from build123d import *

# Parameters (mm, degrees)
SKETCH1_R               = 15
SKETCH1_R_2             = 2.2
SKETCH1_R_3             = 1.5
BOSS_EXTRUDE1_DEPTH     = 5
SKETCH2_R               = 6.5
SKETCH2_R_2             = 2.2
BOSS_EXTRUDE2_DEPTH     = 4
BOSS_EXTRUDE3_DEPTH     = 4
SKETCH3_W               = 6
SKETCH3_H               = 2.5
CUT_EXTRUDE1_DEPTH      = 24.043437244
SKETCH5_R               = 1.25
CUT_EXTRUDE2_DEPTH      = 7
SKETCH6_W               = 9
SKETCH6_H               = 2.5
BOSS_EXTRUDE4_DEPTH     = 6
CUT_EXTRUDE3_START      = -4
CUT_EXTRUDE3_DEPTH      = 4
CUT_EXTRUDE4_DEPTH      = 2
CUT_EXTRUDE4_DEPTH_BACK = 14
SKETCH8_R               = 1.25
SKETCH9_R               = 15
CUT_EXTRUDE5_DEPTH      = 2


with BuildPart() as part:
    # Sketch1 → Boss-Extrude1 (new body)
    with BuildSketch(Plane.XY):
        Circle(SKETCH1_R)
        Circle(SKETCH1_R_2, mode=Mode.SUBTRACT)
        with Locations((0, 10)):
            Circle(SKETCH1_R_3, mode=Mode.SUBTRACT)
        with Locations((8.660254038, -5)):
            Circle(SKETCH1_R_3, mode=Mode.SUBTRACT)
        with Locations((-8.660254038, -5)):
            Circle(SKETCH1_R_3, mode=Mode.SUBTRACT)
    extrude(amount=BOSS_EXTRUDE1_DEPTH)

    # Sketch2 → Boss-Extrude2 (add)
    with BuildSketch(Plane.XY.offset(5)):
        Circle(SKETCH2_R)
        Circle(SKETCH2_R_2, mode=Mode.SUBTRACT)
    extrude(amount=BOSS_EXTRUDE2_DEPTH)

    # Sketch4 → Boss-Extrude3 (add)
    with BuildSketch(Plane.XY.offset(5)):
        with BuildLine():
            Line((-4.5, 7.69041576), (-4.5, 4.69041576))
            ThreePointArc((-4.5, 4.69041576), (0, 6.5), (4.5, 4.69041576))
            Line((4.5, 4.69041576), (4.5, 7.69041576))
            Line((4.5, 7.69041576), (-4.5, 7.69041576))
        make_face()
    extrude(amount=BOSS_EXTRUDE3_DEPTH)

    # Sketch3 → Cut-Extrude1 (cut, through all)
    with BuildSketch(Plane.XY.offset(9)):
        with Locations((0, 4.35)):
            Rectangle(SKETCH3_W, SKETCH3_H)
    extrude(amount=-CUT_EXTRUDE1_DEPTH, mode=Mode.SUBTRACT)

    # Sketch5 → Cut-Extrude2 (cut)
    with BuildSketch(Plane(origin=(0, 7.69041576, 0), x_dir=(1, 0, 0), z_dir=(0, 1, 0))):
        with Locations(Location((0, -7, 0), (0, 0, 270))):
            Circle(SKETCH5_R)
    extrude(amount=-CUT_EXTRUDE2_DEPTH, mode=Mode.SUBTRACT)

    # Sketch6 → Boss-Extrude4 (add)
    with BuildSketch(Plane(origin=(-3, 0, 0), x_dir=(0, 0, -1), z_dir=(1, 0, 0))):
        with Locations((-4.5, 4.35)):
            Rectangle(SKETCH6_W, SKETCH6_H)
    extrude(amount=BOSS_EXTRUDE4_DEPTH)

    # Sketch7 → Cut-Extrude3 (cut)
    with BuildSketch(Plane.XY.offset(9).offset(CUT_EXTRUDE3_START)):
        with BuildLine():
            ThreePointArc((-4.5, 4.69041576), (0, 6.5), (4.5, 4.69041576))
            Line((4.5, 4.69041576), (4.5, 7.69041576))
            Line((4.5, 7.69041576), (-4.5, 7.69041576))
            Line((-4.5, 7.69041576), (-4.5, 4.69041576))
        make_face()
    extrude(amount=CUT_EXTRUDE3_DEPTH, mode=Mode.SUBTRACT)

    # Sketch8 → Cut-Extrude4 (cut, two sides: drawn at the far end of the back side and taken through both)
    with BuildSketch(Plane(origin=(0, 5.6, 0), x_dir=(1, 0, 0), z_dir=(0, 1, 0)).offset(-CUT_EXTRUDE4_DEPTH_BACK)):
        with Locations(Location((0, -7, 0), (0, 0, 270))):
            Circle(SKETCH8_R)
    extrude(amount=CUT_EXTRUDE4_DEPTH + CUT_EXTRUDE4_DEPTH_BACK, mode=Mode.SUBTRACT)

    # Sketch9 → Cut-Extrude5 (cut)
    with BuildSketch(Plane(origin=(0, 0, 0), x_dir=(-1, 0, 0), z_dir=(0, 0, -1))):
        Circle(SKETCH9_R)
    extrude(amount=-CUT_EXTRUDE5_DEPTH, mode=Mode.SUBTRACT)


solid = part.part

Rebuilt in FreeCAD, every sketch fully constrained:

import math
import FreeCAD as App
import Part
import Sketcher
from FreeCAD import Vector


def add_polygon(sketch, points):
    """Adds a closed chain of lines whose ends are joined by coincident constraints."""
    first, n = sketch.GeometryCount, len(points)
    for a, b in zip(points, points[1:] + points[:1]):
        sketch.addGeometry(Part.LineSegment(App.Vector(*a, 0), App.Vector(*b, 0)), False)
    for i in range(n):
        sketch.addConstraint(Sketcher.Constraint("Coincident", first + i, 2, first + (i + 1) % n, 1))

doc = App.newDocument("Part")
params = doc.addObject("Spreadsheet::Sheet", "Params")
for row, (alias, value) in enumerate([
    ("sketch1_diameter", "30 mm"),
    ("sketch1_diameter2", "3 mm"),
    ("sketch1_diameter3", "4.4 mm"),
    ("pad1_length", "5 mm"),
    ("sketch2_diameter", "13 mm"),
    ("sketch2_diameter2", "4.4 mm"),
    ("pad2_length", "4 mm"),
    ("sketch3_radius", "6.5 mm"),
    ("sketch3_width", "9 mm"),
    ("sketch3_height", "3 mm"),
    ("pad3_length", "4 mm"),
    ("sketch4_width", "6 mm"),
    ("sketch4_height", "2.5 mm"),
    ("sketch5_diameter", "2.5 mm"),
    ("pocket2_length", "7 mm"),
    ("sketch6_height", "9 mm"),
    ("sketch6_width", "2.5 mm"),
    ("pad4_length", "6 mm"),
    ("sketch7_radius", "6.5 mm"),
    ("sketch7_width", "9 mm"),
    ("sketch7_height", "3 mm"),
    ("pocket3_length", "4 mm"),
    ("sketch8_diameter", "2.5 mm"),
    ("sketch9_diameter", "30 mm"),
    ("pocket5_length", "2 mm"),
], start=1):
    params.set(f"A{row}", alias)
    params.set(f"B{row}", "=" + value)
    params.setAlias(f"B{row}", alias)

body = doc.addObject("PartDesign::Body", "Body")

# Sketch on XY plane
sketch1 = body.newObject("Sketcher::SketchObject", "Sketch")
sketch1.AttachmentSupport = (doc.getObject("XY_Plane"), [""])
sketch1.MapMode = "FlatFace"
sketch1.addGeometry([
    Part.Circle(Vector(0, 0, 0), Vector(0, 0, 1), 15),  # 0
    Part.Circle(Vector(-8.7, -5, 0), Vector(0, 0, 1), 1.5),  # 1
    Part.Circle(Vector(8.7, -5, 0), Vector(0, 0, 1), 1.5),  # 2
    Part.Circle(Vector(0, 0, 0), Vector(0, 0, 1), 2.2),  # 3
    Part.Circle(Vector(0, 10, 0), Vector(0, 0, 1), 1.5),  # 4
], False)
sketch1.addConstraint([
    Sketcher.Constraint("Coincident", 0, 3, -1, 1),
    Sketcher.Constraint("Coincident", 3, 3, -1, 1),
    Sketcher.Constraint("Equal", 1, 2),
    Sketcher.Constraint("Equal", 2, 4),
    Sketcher.Constraint("Symmetric", 1, 3, 2, 3, -2),
    Sketcher.Constraint("PointOnObject", 4, 3, -2),
    Sketcher.Constraint("Diameter", 0, 30.0),
    Sketcher.Constraint("Diameter", 1, 3.0),
    Sketcher.Constraint("Diameter", 3, 4.4),
    Sketcher.Constraint("DistanceY", 1, 3, -1, 1, 5.0),
    Sketcher.Constraint("DistanceY", -1, 1, 4, 3, 10.0),
    Sketcher.Constraint("DistanceX", 1, 3, 2, 3, 17.320508),
])
sketch1.setExpression("Constraints[6]", "Params.sketch1_diameter")
sketch1.setExpression("Constraints[7]", "Params.sketch1_diameter2")
sketch1.setExpression("Constraints[8]", "Params.sketch1_diameter3")
pad1 = body.newObject("PartDesign::Pad", "Pad")
pad1.Profile = sketch1
pad1.setExpression("Length", "Params.pad1_length")

# Sketch on XY plane
sketch2 = body.newObject("Sketcher::SketchObject", "Sketch001")
sketch2.AttachmentSupport = (doc.getObject("XY_Plane"), [""])
sketch2.MapMode = "FlatFace"
sketch2.AttachmentOffset = App.Placement(Vector(0, 0, 5), App.Rotation())
sketch2.addGeometry([
    Part.Circle(Vector(0, 0, 0), Vector(0, 0, 1), 6.5),
    Part.Circle(Vector(0, 0, 0), Vector(0, 0, 1), 2.2),
], False)
sketch2.addConstraint([
    Sketcher.Constraint("Coincident", 0, 3, -1, 1),
    Sketcher.Constraint("Coincident", 1, 3, -1, 1),
    Sketcher.Constraint("Diameter", 0, 13.0),
    Sketcher.Constraint("Diameter", 1, 4.4),
])
sketch2.setExpression("Constraints[2]", "Params.sketch2_diameter")
sketch2.setExpression("Constraints[3]", "Params.sketch2_diameter2")
pad2 = body.newObject("PartDesign::Pad", "Pad001")
pad2.Profile = sketch2
pad2.setExpression("Length", "Params.pad2_length")

# Sketch on XY plane
sketch3 = body.newObject("Sketcher::SketchObject", "Sketch002")
sketch3.AttachmentSupport = (doc.getObject("XY_Plane"), [""])
sketch3.MapMode = "FlatFace"
sketch3.AttachmentOffset = App.Placement(Vector(0, 0, 5), App.Rotation())
sketch3.addGeometry([
    Part.LineSegment(Vector(-4.5, 7.7, 0), Vector(-4.5, 4.7, 0)),
    Part.ArcOfCircle(Part.Circle(Vector(0, 0, 0), Vector(0, 0, 1), 6.5), math.radians(46), math.radians(134)),
    Part.LineSegment(Vector(4.5, 4.7, 0), Vector(4.5, 7.7, 0)),
    Part.LineSegment(Vector(4.5, 7.7, 0), Vector(-4.5, 7.7, 0)),
], False)
sketch3.addConstraint([
    Sketcher.Constraint("Coincident", 0, 2, 1, 2),
    Sketcher.Constraint("Coincident", 1, 1, 2, 1),
    Sketcher.Constraint("Coincident", 2, 2, 3, 1),
    Sketcher.Constraint("Coincident", 3, 2, 0, 1),
    Sketcher.Constraint("Vertical", 0),
    Sketcher.Constraint("Vertical", 2),
    Sketcher.Constraint("Horizontal", 3),
    Sketcher.Constraint("Coincident", 1, 3, -1, 1),
    Sketcher.Constraint("Horizontal", 0, 2, 1, 1),
    Sketcher.Constraint("Radius", 1, 6.5),
    Sketcher.Constraint("DistanceX", 3, 2, 3, 1, 9.0),
    Sketcher.Constraint("DistanceY", 0, 2, 0, 1, 3.0),
])
sketch3.setExpression("Constraints[9]", "Params.sketch3_radius")
sketch3.setExpression("Constraints[10]", "Params.sketch3_width")
sketch3.setExpression("Constraints[11]", "Params.sketch3_height")
pad3 = body.newObject("PartDesign::Pad", "Pad002")
pad3.Profile = sketch3
pad3.setExpression("Length", "Params.pad3_length")

# Sketch on XY plane
sketch4 = body.newObject("Sketcher::SketchObject", "Sketch003")
sketch4.AttachmentSupport = (doc.getObject("XY_Plane"), [""])
sketch4.MapMode = "FlatFace"
sketch4.AttachmentOffset = App.Placement(Vector(0, 0, 9), App.Rotation())
add_polygon(sketch4, [(-3, 5.6), (-3, 3.1), (3, 3.1), (3, 5.6)])  # lines 0-3
sketch4.addConstraint([
    Sketcher.Constraint("Vertical", 0),
    Sketcher.Constraint("Horizontal", 1),
    Sketcher.Constraint("Vertical", 2),
    Sketcher.Constraint("Horizontal", 3),
    Sketcher.Constraint("DistanceX", 1, 1, 1, 2, 6.0),
    Sketcher.Constraint("DistanceY", 0, 2, 0, 1, 2.5),
    Sketcher.Constraint("DistanceX", 0, 2, -1, 1, 3.0),
    Sketcher.Constraint("DistanceY", -1, 1, 0, 2, 3.1),
])
sketch4.setExpression("Constraints[8]", "Params.sketch4_width")
sketch4.setExpression("Constraints[9]", "Params.sketch4_height")
pocket1 = body.newObject("PartDesign::Pocket", "Pocket")
pocket1.Profile = sketch4
pocket1.Type = "ThroughAll"

# Sketch on XZ plane
sketch5 = body.newObject("Sketcher::SketchObject", "Sketch004")
sketch5.AttachmentSupport = (doc.getObject("XZ_Plane"), [""])
sketch5.MapMode = "FlatFace"
sketch5.AttachmentOffset = App.Placement(Vector(0, 0, -7.690416), App.Rotation())
sketch5.addGeometry(Part.Circle(Vector(0, 7, 0), Vector(0, 0, 1), 1.2), False)
sketch5.addConstraint([
    Sketcher.Constraint("PointOnObject", 0, 3, -2),
    Sketcher.Constraint("Diameter", 0, 2.5),
    Sketcher.Constraint("DistanceY", -1, 1, 0, 3, 7.0),
])
sketch5.setExpression("Constraints[1]", "Params.sketch5_diameter")
pocket2 = body.newObject("PartDesign::Pocket", "Pocket001")
pocket2.Profile = sketch5
pocket2.setExpression("Length", "Params.pocket2_length")
pocket2.Reversed = True

# Sketch on YZ plane
sketch6 = body.newObject("Sketcher::SketchObject", "Sketch005")
sketch6.AttachmentSupport = (doc.getObject("YZ_Plane"), [""])
sketch6.MapMode = "FlatFace"
sketch6.AttachmentOffset = App.Placement(Vector(0, 0, -3), App.Rotation())
add_polygon(sketch6, [(5.6, 9), (3.1, 9), (3.1, 0), (5.6, 0)])  # lines 0-3
sketch6.addConstraint([
    Sketcher.Constraint("Horizontal", 0),
    Sketcher.Constraint("Vertical", 1),
    Sketcher.Constraint("Horizontal", 2),
    Sketcher.Constraint("Vertical", 3),
    Sketcher.Constraint("PointOnObject", 1, 2, -1),
    Sketcher.Constraint("DistanceY", 1, 2, 1, 1, 9.0),
    Sketcher.Constraint("DistanceX", 0, 2, 0, 1, 2.5),
    Sketcher.Constraint("DistanceX", -1, 1, 0, 2, 3.1),
])
sketch6.setExpression("Constraints[9]", "Params.sketch6_height")
sketch6.setExpression("Constraints[10]", "Params.sketch6_width")
pad4 = body.newObject("PartDesign::Pad", "Pad003")
pad4.Profile = sketch6
pad4.setExpression("Length", "Params.pad4_length")

# Sketch on XY plane
sketch7 = body.newObject("Sketcher::SketchObject", "Sketch006")
sketch7.AttachmentSupport = (doc.getObject("XY_Plane"), [""])
sketch7.MapMode = "FlatFace"
sketch7.AttachmentOffset = App.Placement(Vector(0, 0, 5), App.Rotation())
sketch7.addGeometry([
    Part.ArcOfCircle(Part.Circle(Vector(0, 0, 0), Vector(0, 0, 1), 6.5), math.radians(46), math.radians(134)),
    Part.LineSegment(Vector(4.5, 4.7, 0), Vector(4.5, 7.7, 0)),
    Part.LineSegment(Vector(4.5, 7.7, 0), Vector(-4.5, 7.7, 0)),
    Part.LineSegment(Vector(-4.5, 7.7, 0), Vector(-4.5, 4.7, 0)),
], False)
sketch7.addConstraint([
    Sketcher.Constraint("Coincident", 0, 1, 1, 1),
    Sketcher.Constraint("Coincident", 1, 2, 2, 1),
    Sketcher.Constraint("Coincident", 2, 2, 3, 1),
    Sketcher.Constraint("Coincident", 3, 2, 0, 2),
    Sketcher.Constraint("Vertical", 1),
    Sketcher.Constraint("Horizontal", 2),
    Sketcher.Constraint("Vertical", 3),
    Sketcher.Constraint("Coincident", 0, 3, -1, 1),
    Sketcher.Constraint("Horizontal", 0, 1, 3, 2),
    Sketcher.Constraint("Radius", 0, 6.5),
    Sketcher.Constraint("DistanceX", 2, 2, 2, 1, 9.0),
    Sketcher.Constraint("DistanceY", 1, 1, 1, 2, 3.0),
])
sketch7.setExpression("Constraints[9]", "Params.sketch7_radius")
sketch7.setExpression("Constraints[10]", "Params.sketch7_width")
sketch7.setExpression("Constraints[11]", "Params.sketch7_height")
pocket3 = body.newObject("PartDesign::Pocket", "Pocket002")
pocket3.Profile = sketch7
pocket3.setExpression("Length", "Params.pocket3_length")
pocket3.Reversed = True

# Sketch on XZ plane
sketch8 = body.newObject("Sketcher::SketchObject", "Sketch007")
sketch8.AttachmentSupport = (doc.getObject("XZ_Plane"), [""])
sketch8.MapMode = "FlatFace"
sketch8.AttachmentOffset = App.Placement(Vector(0, 0, -5.6), App.Rotation())
sketch8.addGeometry(Part.Circle(Vector(0, 7, 0), Vector(0, 0, 1), 1.2), False)
sketch8.addConstraint([
    Sketcher.Constraint("PointOnObject", 0, 3, -2),
    Sketcher.Constraint("Diameter", 0, 2.5),
    Sketcher.Constraint("DistanceY", -1, 1, 0, 3, 7.0),
])
sketch8.setExpression("Constraints[1]", "Params.sketch8_diameter")
pocket4 = body.newObject("PartDesign::Pocket", "Pocket003")
pocket4.Profile = sketch8
pocket4.Type = "ThroughAll"
pocket4.Midplane = True

# Sketch on XY plane
sketch9 = body.newObject("Sketcher::SketchObject", "Sketch008")
sketch9.AttachmentSupport = (doc.getObject("XY_Plane"), [""])
sketch9.MapMode = "FlatFace"
sketch9.addGeometry(Part.Circle(Vector(0, 0, 0), Vector(0, 0, 1), 15), False)
sketch9.addConstraint([
    Sketcher.Constraint("Coincident", 0, 3, -1, 1),
    Sketcher.Constraint("Diameter", 0, 30.0),
])
sketch9.setExpression("Constraints[1]", "Params.sketch9_diameter")
pocket5 = body.newObject("PartDesign::Pocket", "Pocket004")
pocket5.Profile = sketch9
pocket5.setExpression("Length", "Params.pocket5_length")
pocket5.Reversed = True

doc.recompute()
